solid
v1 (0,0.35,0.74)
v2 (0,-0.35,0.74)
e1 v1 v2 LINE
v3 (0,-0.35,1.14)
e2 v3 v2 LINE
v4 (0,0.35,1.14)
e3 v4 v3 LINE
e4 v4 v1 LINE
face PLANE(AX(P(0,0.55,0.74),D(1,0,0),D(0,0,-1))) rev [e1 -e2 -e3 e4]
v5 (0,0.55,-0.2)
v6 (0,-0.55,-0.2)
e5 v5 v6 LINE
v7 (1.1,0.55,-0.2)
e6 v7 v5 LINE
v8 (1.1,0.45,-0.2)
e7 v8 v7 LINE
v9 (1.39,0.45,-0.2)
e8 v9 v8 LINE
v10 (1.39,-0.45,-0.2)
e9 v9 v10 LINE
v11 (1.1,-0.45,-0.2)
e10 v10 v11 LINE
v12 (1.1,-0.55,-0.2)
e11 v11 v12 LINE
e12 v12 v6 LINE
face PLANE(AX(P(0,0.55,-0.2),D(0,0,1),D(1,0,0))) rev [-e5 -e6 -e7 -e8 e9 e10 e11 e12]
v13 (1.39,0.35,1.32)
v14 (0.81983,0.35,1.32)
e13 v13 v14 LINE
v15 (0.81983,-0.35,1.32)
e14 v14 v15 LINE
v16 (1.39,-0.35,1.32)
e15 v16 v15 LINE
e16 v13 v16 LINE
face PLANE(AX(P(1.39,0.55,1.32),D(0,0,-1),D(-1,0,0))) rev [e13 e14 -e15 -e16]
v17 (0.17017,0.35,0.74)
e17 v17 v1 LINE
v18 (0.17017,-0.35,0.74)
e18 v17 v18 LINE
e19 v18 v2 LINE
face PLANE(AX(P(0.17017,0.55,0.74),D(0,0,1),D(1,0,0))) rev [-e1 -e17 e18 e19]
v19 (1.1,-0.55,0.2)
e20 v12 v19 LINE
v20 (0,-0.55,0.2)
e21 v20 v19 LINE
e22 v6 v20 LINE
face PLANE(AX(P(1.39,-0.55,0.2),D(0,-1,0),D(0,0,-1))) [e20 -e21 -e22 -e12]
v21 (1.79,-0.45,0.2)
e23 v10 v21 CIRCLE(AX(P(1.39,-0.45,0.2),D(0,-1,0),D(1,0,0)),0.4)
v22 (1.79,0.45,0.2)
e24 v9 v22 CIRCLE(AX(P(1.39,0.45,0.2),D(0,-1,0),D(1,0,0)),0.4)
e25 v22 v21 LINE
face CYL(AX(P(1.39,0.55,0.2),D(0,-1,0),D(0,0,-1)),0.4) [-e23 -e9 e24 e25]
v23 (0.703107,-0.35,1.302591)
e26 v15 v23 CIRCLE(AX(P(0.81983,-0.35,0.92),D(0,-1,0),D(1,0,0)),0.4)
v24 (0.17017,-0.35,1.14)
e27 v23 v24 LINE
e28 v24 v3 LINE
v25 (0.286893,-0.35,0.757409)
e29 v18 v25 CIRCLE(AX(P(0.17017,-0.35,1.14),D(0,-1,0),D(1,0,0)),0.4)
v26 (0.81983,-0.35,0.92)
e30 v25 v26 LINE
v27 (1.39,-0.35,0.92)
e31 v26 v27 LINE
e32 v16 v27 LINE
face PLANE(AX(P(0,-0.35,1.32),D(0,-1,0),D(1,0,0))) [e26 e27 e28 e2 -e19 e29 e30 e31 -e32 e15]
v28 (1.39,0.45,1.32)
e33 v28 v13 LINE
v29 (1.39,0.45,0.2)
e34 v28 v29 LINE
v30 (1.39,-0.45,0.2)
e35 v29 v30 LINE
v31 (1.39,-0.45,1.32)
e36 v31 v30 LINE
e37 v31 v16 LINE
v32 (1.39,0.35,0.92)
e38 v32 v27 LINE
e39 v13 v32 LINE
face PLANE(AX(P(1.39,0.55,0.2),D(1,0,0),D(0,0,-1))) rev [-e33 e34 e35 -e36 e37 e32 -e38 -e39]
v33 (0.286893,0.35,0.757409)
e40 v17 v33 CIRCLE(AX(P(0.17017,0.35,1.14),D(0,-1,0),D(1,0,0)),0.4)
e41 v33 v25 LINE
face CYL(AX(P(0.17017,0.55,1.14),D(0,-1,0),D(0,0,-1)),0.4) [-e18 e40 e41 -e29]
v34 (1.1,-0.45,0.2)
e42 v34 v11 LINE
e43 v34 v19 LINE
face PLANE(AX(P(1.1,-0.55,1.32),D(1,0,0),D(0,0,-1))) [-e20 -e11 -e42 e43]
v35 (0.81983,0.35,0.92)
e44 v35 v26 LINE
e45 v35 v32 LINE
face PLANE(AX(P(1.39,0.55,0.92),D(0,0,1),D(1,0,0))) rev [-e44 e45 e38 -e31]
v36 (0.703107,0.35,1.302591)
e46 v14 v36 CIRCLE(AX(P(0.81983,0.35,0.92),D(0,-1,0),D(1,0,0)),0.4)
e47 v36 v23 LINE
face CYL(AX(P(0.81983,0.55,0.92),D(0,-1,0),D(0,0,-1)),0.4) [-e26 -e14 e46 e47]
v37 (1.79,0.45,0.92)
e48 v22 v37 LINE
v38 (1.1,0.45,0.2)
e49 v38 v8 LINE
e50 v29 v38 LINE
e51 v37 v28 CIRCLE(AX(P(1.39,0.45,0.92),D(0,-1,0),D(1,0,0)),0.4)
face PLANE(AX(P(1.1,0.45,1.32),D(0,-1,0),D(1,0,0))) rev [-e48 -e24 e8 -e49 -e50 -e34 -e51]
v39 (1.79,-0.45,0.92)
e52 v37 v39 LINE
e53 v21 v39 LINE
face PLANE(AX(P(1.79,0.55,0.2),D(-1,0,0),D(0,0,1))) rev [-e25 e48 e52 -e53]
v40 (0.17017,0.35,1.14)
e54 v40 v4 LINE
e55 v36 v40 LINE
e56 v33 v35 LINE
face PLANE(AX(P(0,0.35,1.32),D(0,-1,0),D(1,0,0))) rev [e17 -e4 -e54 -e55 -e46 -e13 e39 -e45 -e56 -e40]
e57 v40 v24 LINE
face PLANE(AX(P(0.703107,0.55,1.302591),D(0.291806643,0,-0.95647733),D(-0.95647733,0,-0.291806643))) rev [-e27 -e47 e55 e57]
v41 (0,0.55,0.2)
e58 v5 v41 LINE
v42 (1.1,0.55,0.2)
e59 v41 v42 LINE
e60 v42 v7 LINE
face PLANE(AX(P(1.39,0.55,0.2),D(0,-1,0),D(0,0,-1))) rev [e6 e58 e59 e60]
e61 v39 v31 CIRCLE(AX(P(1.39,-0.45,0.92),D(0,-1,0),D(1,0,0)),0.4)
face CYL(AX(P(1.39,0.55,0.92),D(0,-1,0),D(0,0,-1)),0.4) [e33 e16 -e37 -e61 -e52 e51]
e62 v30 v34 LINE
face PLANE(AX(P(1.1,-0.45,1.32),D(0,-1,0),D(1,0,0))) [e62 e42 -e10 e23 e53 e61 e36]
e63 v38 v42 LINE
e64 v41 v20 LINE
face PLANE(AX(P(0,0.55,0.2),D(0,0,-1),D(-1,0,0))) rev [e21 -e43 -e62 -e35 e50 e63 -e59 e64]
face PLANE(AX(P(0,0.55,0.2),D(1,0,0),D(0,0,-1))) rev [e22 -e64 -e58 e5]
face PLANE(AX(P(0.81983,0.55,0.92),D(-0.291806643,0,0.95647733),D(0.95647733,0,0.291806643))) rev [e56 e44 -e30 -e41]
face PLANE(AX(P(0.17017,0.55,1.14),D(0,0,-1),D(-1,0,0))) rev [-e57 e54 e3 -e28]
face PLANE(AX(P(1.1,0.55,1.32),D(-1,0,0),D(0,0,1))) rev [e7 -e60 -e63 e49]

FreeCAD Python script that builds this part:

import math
import FreeCAD as App
import Part
import Sketcher
from FreeCAD import Vector
Q = App.Units.Quantity


def add_polygon(sketch, points):
    """Adds a closed chain of lines whose ends are joined by coincident constraints."""
    first, n = sketch.GeometryCount, len(points)
    for a, b in zip(points, points[1:] + points[:1]):
        sketch.addGeometry(Part.LineSegment(App.Vector(*a, 0), App.Vector(*b, 0)), False)
    for i in range(n):
        sketch.addConstraint(Sketcher.Constraint("Coincident", first + i, 2, first + (i + 1) % n, 1))

doc = App.newDocument("Part")
body = doc.addObject("PartDesign::Body", "Body")

sketch1 = body.newObject("Sketcher::SketchObject", "Sketch")
sketch1.AttachmentSupport = (doc.getObject("XZ_Plane"), [""])
sketch1.MapMode = "FlatFace"
sketch1.addGeometry(Part.LineSegment(Vector(0, 0.2, 0), Vector(1.39, 0.2, 0)), False)
sketch1.addGeometry(Part.LineSegment(Vector(1.39, 0.2, 0), Vector(1.39, 0.92, 0)), False)
sketch1.addGeometry(Part.LineSegment(Vector(1.39, 0.92, 0), Vector(0.82, 0.92, 0)), False)
sketch1.addGeometry(Part.LineSegment(Vector(0.82, 0.92, 0), Vector(0.29, 0.76, 0)), False)
sketch1.addGeometry(Part.ArcOfCircle(Part.Circle(Vector(0.17, 1.14, 0), Vector(0, 0, 1), 0.4), math.radians(-90), math.radians(-73.03)), False)
sketch1.addGeometry(Part.LineSegment(Vector(0.17, 0.74, 0), Vector(0, 0.74, 0)), False)
sketch1.addGeometry(Part.LineSegment(Vector(0, 0.74, 0), Vector(0, 1.14, 0)), False)
sketch1.addGeometry(Part.LineSegment(Vector(0, 1.14, 0), Vector(0.17, 1.14, 0)), False)
sketch1.addGeometry(Part.LineSegment(Vector(0.17, 1.14, 0), Vector(0.7, 1.3, 0)), False)
sketch1.addGeometry(Part.ArcOfCircle(Part.Circle(Vector(0.82, 0.92, 0), Vector(0, 0, 1), 0.4), math.radians(90), math.radians(106.97)), False)
sketch1.addGeometry(Part.LineSegment(Vector(0.82, 1.32, 0), Vector(1.39, 1.32, 0)), False)
sketch1.addGeometry(Part.ArcOfCircle(Part.Circle(Vector(1.39, 0.92, 0), Vector(0, 0, 1), 0.4), math.radians(0), math.radians(90)), False)
sketch1.addGeometry(Part.LineSegment(Vector(1.79, 0.92, 0), Vector(1.79, 0.2, 0)), False)
sketch1.addGeometry(Part.ArcOfCircle(Part.Circle(Vector(1.39, 0.2, 0), Vector(0, 0, 1), 0.4), math.radians(-90), math.radians(0)), False)
sketch1.addGeometry(Part.LineSegment(Vector(1.39, -0.2, 0), Vector(0, -0.2, 0)), False)
sketch1.addGeometry(Part.LineSegment(Vector(0, -0.2, 0), Vector(0, 0.2, 0)), False)
sketch1.addConstraint(Sketcher.Constraint("Coincident", 0, 2, 1, 1))
sketch1.addConstraint(Sketcher.Constraint("Coincident", 1, 2, 2, 1))
sketch1.addConstraint(Sketcher.Constraint("Coincident", 2, 2, 3, 1))
sketch1.addConstraint(Sketcher.Constraint("Tangent", 3, 2, 4, 2))
sketch1.addConstraint(Sketcher.Constraint("Tangent", 4, 1, 5, 1))
sketch1.addConstraint(Sketcher.Constraint("Coincident", 5, 2, 6, 1))
sketch1.addConstraint(Sketcher.Constraint("Coincident", 6, 2, 7, 1))
sketch1.addConstraint(Sketcher.Constraint("Coincident", 7, 2, 8, 1))
sketch1.addConstraint(Sketcher.Constraint("Tangent", 8, 2, 9, 2))
sketch1.addConstraint(Sketcher.Constraint("Tangent", 9, 1, 10, 1))
sketch1.addConstraint(Sketcher.Constraint("Tangent", 10, 2, 11, 2))
sketch1.addConstraint(Sketcher.Constraint("Tangent", 11, 1, 12, 1))
sketch1.addConstraint(Sketcher.Constraint("Tangent", 12, 2, 13, 2))
sketch1.addConstraint(Sketcher.Constraint("Tangent", 13, 1, 14, 1))
sketch1.addConstraint(Sketcher.Constraint("Coincident", 14, 2, 15, 1))
sketch1.addConstraint(Sketcher.Constraint("Coincident", 15, 2, 0, 1))
sketch1.addConstraint(Sketcher.Constraint("Horizontal", 0))
sketch1.addConstraint(Sketcher.Constraint("Vertical", 1))
sketch1.addConstraint(Sketcher.Constraint("Horizontal", 2))
sketch1.addConstraint(Sketcher.Constraint("Horizontal", 5))
sketch1.addConstraint(Sketcher.Constraint("Vertical", 6))
sketch1.addConstraint(Sketcher.Constraint("Horizontal", 7))
sketch1.addConstraint(Sketcher.Constraint("Horizontal", 10))
sketch1.addConstraint(Sketcher.Constraint("Vertical", 12))
sketch1.addConstraint(Sketcher.Constraint("Horizontal", 14))
sketch1.addConstraint(Sketcher.Constraint("Vertical", 15))
sketch1.addConstraint(Sketcher.Constraint("Coincident", 0, 2, 13, 3))
sketch1.addConstraint(Sketcher.Constraint("Coincident", 1, 2, 11, 3))
sketch1.addConstraint(Sketcher.Constraint("Coincident", 2, 2, 9, 3))
sketch1.addConstraint(Sketcher.Constraint("Coincident", 7, 2, 4, 3))
sketch1.addConstraint(Sketcher.Constraint("Equal", 4, 9))
sketch1.addConstraint(Sketcher.Constraint("Symmetric", 14, 2, 15, 2, -1, 1))
sketch1.addConstraint(Sketcher.Constraint("PointOnObject", 5, 2, -2))
sketch1.addConstraint(Sketcher.Constraint("Radius", 4, Q("0.4 mm")))
sketch1.addConstraint(Sketcher.Constraint("DistanceX", 0, 1, 0, 2, Q("1.39 mm")))
sketch1.addConstraint(Sketcher.Constraint("DistanceY", 1, 1, 1, 2, Q("0.72 mm")))
sketch1.addConstraint(Sketcher.Constraint("DistanceY", -1, 1, 4, 3, Q("1.14 mm")))
sketch1.addConstraint(Sketcher.Constraint("DistanceX", 2, 2, 2, 1, Q("0.57017 mm")))
sketch1.addConstraint(Sketcher.Constraint("DistanceX", 5, 2, 5, 1, Q("0.17017 mm")))
pad1 = body.newObject("PartDesign::Pad", "Pad")
pad1.Profile = sketch1
pad1.Length = 1.1
pad1.Midplane = True

sketch2 = body.newObject("Sketcher::SketchObject", "Sketch001")
sketch2.AttachmentSupport = (doc.getObject("XY_Plane"), [""])
sketch2.MapMode = "FlatFace"
sketch2.AttachmentOffset = App.Placement(Vector(0, 0, -0.2), App.Rotation())
add_polygon(sketch2, [(2.41, 0.55), (2.41, 0.45), (1.1, 0.45), (1.1, 0.55)])
sketch2.addConstraint(Sketcher.Constraint("Vertical", 0))
sketch2.addConstraint(Sketcher.Constraint("Horizontal", 1))
sketch2.addConstraint(Sketcher.Constraint("Vertical", 2))
sketch2.addConstraint(Sketcher.Constraint("Horizontal", 3))
sketch2.addConstraint(Sketcher.Constraint("DistanceY", 0, 2, 0, 1, Q("0.1 mm")))
sketch2.addConstraint(Sketcher.Constraint("DistanceX", -1, 1, 1, 2, Q("1.1 mm")))
sketch2.addConstraint(Sketcher.Constraint("DistanceY", -1, 1, 0, 2, Q("0.45 mm")))
sketch2.addConstraint(Sketcher.Constraint("DistanceX", 1, 2, 1, 1, Q("1.309614 mm")))
pocket1 = body.newObject("PartDesign::Pocket", "Pocket")
pocket1.Profile = sketch2
pocket1.Type = "ThroughAll"
pocket1.Reversed = True
doc.recompute()

mirrored = body.newObject("PartDesign::Mirrored", "Mirrored")
mirrored.Originals = [pocket1]
mirrored.MirrorPlane = (doc.getObject("XZ_Plane"), [""])
body.Tip = mirrored

sketch3 = body.newObject("Sketcher::SketchObject", "Sketch002")
sketch3.AttachmentSupport = (doc.getObject("XY_Plane"), [""])
sketch3.MapMode = "FlatFace"
sketch3.AttachmentOffset = App.Placement(Vector(0, 0, 0.74), App.Rotation())
add_polygon(sketch3, [(1.4, 1.3), (1.4, 0.3), (0, 0.3), (0, 1.3)])
sketch3.addConstraint(Sketcher.Constraint("Vertical", 0))
sketch3.addConstraint(Sketcher.Constraint("Horizontal", 1))
sketch3.addConstraint(Sketcher.Constraint("Vertical", 2))
sketch3.addConstraint(Sketcher.Constraint("Horizontal", 3))
sketch3.addConstraint(Sketcher.Constraint("PointOnObject", 1, 2, -2))
sketch3.addConstraint(Sketcher.Constraint("DistanceX", 1, 2, 1, 1, Q("1.39 mm")))
sketch3.addConstraint(Sketcher.Constraint("DistanceY", -1, 1, 0, 2, Q("0.35 mm")))
sketch3.addConstraint(Sketcher.Constraint("DistanceY", 0, 2, 0, 1, Q("0.983113 mm")))
pocket2 = body.newObject("PartDesign::Pocket", "Pocket001")
pocket2.Profile = sketch3
pocket2.Type = "ThroughAll"
pocket2.Reversed = True
doc.recompute()

mirrored2 = body.newObject("PartDesign::Mirrored", "Mirrored001")
mirrored2.Originals = [pocket2]
mirrored2.MirrorPlane = (doc.getObject("XZ_Plane"), [""])
body.Tip = mirrored2

doc.recompute()
